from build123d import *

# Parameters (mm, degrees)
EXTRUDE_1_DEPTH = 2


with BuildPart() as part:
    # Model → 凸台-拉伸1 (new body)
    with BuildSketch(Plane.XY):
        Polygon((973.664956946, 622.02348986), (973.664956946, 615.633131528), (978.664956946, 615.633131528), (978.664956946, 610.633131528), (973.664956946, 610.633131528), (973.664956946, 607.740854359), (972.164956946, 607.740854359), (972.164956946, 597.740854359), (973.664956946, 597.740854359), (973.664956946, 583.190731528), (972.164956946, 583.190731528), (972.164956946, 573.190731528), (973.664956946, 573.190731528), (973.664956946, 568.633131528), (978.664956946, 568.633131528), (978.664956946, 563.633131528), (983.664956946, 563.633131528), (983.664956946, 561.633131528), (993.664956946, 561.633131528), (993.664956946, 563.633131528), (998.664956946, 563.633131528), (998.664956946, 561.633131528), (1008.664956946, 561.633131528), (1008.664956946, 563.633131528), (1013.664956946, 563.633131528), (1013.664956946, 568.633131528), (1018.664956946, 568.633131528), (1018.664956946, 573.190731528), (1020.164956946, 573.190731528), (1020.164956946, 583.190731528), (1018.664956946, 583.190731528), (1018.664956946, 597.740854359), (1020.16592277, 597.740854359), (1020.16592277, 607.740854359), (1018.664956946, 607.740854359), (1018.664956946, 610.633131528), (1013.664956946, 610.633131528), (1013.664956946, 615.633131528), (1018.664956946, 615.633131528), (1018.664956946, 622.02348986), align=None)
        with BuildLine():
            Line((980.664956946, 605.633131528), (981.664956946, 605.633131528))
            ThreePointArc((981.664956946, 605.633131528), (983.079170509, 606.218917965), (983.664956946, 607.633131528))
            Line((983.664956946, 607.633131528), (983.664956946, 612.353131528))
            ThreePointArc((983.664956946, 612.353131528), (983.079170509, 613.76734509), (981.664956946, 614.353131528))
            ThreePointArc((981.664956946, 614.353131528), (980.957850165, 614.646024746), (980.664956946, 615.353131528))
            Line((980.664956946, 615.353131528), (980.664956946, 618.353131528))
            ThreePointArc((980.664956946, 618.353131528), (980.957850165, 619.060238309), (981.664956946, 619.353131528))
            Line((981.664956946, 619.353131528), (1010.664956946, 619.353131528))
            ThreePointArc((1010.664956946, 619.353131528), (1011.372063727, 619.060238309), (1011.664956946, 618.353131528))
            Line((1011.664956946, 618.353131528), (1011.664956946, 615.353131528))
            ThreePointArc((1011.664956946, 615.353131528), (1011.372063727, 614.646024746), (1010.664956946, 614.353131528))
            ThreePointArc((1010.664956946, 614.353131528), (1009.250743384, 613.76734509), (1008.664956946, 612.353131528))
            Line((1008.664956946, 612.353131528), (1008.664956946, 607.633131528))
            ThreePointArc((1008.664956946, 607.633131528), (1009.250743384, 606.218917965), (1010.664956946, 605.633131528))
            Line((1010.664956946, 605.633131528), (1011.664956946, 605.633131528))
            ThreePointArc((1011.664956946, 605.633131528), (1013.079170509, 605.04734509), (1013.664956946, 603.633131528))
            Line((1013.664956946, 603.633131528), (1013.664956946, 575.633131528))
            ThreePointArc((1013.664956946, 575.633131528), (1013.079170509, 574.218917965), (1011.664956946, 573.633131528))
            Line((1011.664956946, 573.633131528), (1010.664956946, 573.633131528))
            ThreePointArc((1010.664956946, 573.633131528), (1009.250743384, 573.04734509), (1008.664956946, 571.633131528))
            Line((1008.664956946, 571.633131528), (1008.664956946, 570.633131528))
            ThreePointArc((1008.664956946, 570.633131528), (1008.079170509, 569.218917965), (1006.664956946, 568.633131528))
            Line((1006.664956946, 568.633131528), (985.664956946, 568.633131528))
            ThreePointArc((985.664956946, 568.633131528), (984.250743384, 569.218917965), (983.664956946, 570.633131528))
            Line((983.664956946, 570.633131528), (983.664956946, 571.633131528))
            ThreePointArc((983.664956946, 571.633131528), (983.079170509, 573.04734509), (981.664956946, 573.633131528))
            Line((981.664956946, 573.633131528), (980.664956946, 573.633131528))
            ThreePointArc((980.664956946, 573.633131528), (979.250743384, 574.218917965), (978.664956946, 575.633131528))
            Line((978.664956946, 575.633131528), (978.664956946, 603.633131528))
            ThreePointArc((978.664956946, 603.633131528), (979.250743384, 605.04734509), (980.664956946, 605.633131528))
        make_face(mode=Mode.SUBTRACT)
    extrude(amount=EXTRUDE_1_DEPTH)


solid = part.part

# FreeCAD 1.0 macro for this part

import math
import FreeCAD as App
import Part
import Sketcher
from FreeCAD import Vector
Q = App.Units.Quantity

doc = App.newDocument("Part")
body = doc.addObject("PartDesign::Body", "Body")

sketch1 = body.newObject("Sketcher::SketchObject", "Sketch")
sketch1.AttachmentSupport = (doc.getObject("XY_Plane"), [""])
sketch1.MapMode = "FlatFace"
sketch1.addGeometry(Part.LineSegment(Vector(973.7, 622, 0), Vector(973.7, 615.6, 0)), False)
sketch1.addGeometry(Part.LineSegment(Vector(973.7, 615.6, 0), Vector(978.7, 615.6, 0)), False)
sketch1.addGeometry(Part.LineSegment(Vector(978.7, 615.6, 0), Vector(978.7, 610.6, 0)), False)
sketch1.addGeometry(Part.LineSegment(Vector(978.7, 610.6, 0), Vector(973.7, 610.6, 0)), False)
sketch1.addGeometry(Part.LineSegment(Vector(973.7, 610.6, 0), Vector(973.7, 607.7, 0)), False)
sketch1.addGeometry(Part.LineSegment(Vector(973.7, 607.7, 0), Vector(972.2, 607.7, 0)), False)
sketch1.addGeometry(Part.LineSegment(Vector(972.2, 607.7, 0), Vector(972.2, 597.7, 0)), False)
sketch1.addGeometry(Part.LineSegment(Vector(972.2, 597.7, 0), Vector(973.7, 597.7, 0)), False)
sketch1.addGeometry(Part.LineSegment(Vector(973.7, 597.7, 0), Vector(973.7, 583.2, 0)), False)
sketch1.addGeometry(Part.LineSegment(Vector(973.7, 583.2, 0), Vector(972.2, 583.2, 0)), False)
sketch1.addGeometry(Part.LineSegment(Vector(972.2, 583.2, 0), Vector(972.2, 573.2, 0)), False)
sketch1.addGeometry(Part.LineSegment(Vector(972.2, 573.2, 0), Vector(973.7, 573.2, 0)), False)
sketch1.addGeometry(Part.LineSegment(Vector(973.7, 573.2, 0), Vector(973.7, 568.6, 0)), False)
sketch1.addGeometry(Part.LineSegment(Vector(973.7, 568.6, 0), Vector(978.7, 568.6, 0)), False)
sketch1.addGeometry(Part.LineSegment(Vector(978.7, 568.6, 0), Vector(978.7, 563.6, 0)), False)
sketch1.addGeometry(Part.LineSegment(Vector(978.7, 563.6, 0), Vector(983.7, 563.6, 0)), False)
sketch1.addGeometry(Part.LineSegment(Vector(983.7, 563.6, 0), Vector(983.7, 561.6, 0)), False)
sketch1.addGeometry(Part.LineSegment(Vector(983.7, 561.6, 0), Vector(993.7, 561.6, 0)), False)
sketch1.addGeometry(Part.LineSegment(Vector(993.7, 561.6, 0), Vector(993.7, 563.6, 0)), False)
sketch1.addGeometry(Part.LineSegment(Vector(993.7, 563.6, 0), Vector(998.7, 563.6, 0)), False)
sketch1.addGeometry(Part.LineSegment(Vector(998.7, 563.6, 0), Vector(998.7, 561.6, 0)), False)
sketch1.addGeometry(Part.LineSegment(Vector(998.7, 561.6, 0), Vector(1008.7, 561.6, 0)), False)
sketch1.addGeometry(Part.LineSegment(Vector(1008.7, 561.6, 0), Vector(1008.7, 563.6, 0)), False)
sketch1.addGeometry(Part.LineSegment(Vector(1008.7, 563.6, 0), Vector(1013.7, 563.6, 0)), False)
sketch1.addGeometry(Part.LineSegment(Vector(1013.7, 563.6, 0), Vector(1013.7, 568.6, 0)), False)
sketch1.addGeometry(Part.LineSegment(Vector(1013.7, 568.6, 0), Vector(1018.7, 568.6, 0)), False)
sketch1.addGeometry(Part.LineSegment(Vector(1018.7, 568.6, 0), Vector(1018.7, 573.2, 0)), False)
sketch1.addGeometry(Part.LineSegment(Vector(1018.7, 573.2, 0), Vector(1020.2, 573.2, 0)), False)
sketch1.addGeometry(Part.LineSegment(Vector(1020.2, 573.2, 0), Vector(1020.2, 583.2, 0)), False)
sketch1.addGeometry(Part.LineSegment(Vector(1020.2, 583.2, 0), Vector(1018.7, 583.2, 0)), False)
sketch1.addGeometry(Part.LineSegment(Vector(1018.7, 583.2, 0), Vector(1018.7, 597.7, 0)), False)
sketch1.addGeometry(Part.LineSegment(Vector(1018.7, 597.7, 0), Vector(1020.2, 597.7, 0)), False)
sketch1.addGeometry(Part.LineSegment(Vector(1020.2, 597.7, 0), Vector(1020.2, 607.7, 0)), False)
sketch1.addGeometry(Part.LineSegment(Vector(1020.2, 607.7, 0), Vector(1018.7, 607.7, 0)), False)
sketch1.addGeometry(Part.LineSegment(Vector(1018.7, 607.7, 0), Vector(1018.7, 610.6, 0)), False)
sketch1.addGeometry(Part.LineSegment(Vector(1018.7, 610.6, 0), Vector(1013.7, 610.6, 0)), False)
sketch1.addGeometry(Part.LineSegment(Vector(1013.7, 610.6, 0), Vector(1013.7, 615.6, 0)), False)
sketch1.addGeometry(Part.LineSegment(Vector(1013.7, 615.6, 0), Vector(1018.7, 615.6, 0)), False)
sketch1.addGeometry(Part.LineSegment(Vector(1018.7, 615.6, 0), Vector(1018.7, 622, 0)), False)
sketch1.addGeometry(Part.LineSegment(Vector(1018.7, 622, 0), Vector(973.7, 622, 0)), False)
sketch1.addGeometry(Part.ArcOfCircle(Part.Circle(Vector(980.7, 603.6, 0), Vector(0, 0, 1), 2), math.radians(90), math.radians(180)), False)
sketch1.addGeometry(Part.LineSegment(Vector(980.7, 605.6, 0), Vector(981.7, 605.6, 0)), False)
sketch1.addGeometry(Part.ArcOfCircle(Part.Circle(Vector(981.7, 607.6, 0), Vector(0, 0, 1), 2), math.radians(-90), math.radians(0)), False)
sketch1.addGeometry(Part.LineSegment(Vector(983.7, 607.6, 0), Vector(983.7, 612.4, 0)), False)
sketch1.addGeometry(Part.ArcOfCircle(Part.Circle(Vector(981.7, 612.4, 0), Vector(0, 0, 1), 2), math.radians(0), math.radians(90)), False)
sketch1.addGeometry(Part.ArcOfCircle(Part.Circle(Vector(981.7, 615.4, 0), Vector(0, 0, 1), 1), math.radians(180), math.radians(270)), False)
sketch1.addGeometry(Part.LineSegment(Vector(980.7, 615.4, 0), Vector(980.7, 618.4, 0)), False)
sketch1.addGeometry(Part.ArcOfCircle(Part.Circle(Vector(981.7, 618.4, 0), Vector(0, 0, 1), 1), math.radians(90), math.radians(180)), False)
sketch1.addGeometry(Part.LineSegment(Vector(981.7, 619.4, 0), Vector(1010.7, 619.4, 0)), False)
sketch1.addGeometry(Part.ArcOfCircle(Part.Circle(Vector(1010.7, 618.4, 0), Vector(0, 0, 1), 1), math.radians(0), math.radians(90)), False)
sketch1.addGeometry(Part.LineSegment(Vector(1011.7, 618.4, 0), Vector(1011.7, 615.4, 0)), False)
sketch1.addGeometry(Part.ArcOfCircle(Part.Circle(Vector(1010.7, 615.4, 0), Vector(0, 0, 1), 1), math.radians(-90), math.radians(0)), False)
sketch1.addGeometry(Part.ArcOfCircle(Part.Circle(Vector(1010.7, 612.4, 0), Vector(0, 0, 1), 2), math.radians(90), math.radians(180)), False)
sketch1.addGeometry(Part.LineSegment(Vector(1008.7, 612.4, 0), Vector(1008.7, 607.6, 0)), False)
sketch1.addGeometry(Part.ArcOfCircle(Part.Circle(Vector(1010.7, 607.6, 0), Vector(0, 0, 1), 2), math.radians(180), math.radians(270)), False)
sketch1.addGeometry(Part.LineSegment(Vector(1010.7, 605.6, 0), Vector(1011.7, 605.6, 0)), False)
sketch1.addGeometry(Part.ArcOfCircle(Part.Circle(Vector(1011.7, 603.6, 0), Vector(0, 0, 1), 2), math.radians(0), math.radians(90)), False)
sketch1.addGeometry(Part.LineSegment(Vector(1013.7, 603.6, 0), Vector(1013.7, 575.6, 0)), False)
sketch1.addGeometry(Part.ArcOfCircle(Part.Circle(Vector(1011.7, 575.6, 0), Vector(0, 0, 1), 2), math.radians(-90), math.radians(0)), False)
sketch1.addGeometry(Part.LineSegment(Vector(1011.7, 573.6, 0), Vector(1010.7, 573.6, 0)), False)
sketch1.addGeometry(Part.ArcOfCircle(Part.Circle(Vector(1010.7, 571.6, 0), Vector(0, 0, 1), 2), math.radians(90), math.radians(180)), False)
sketch1.addGeometry(Part.LineSegment(Vector(1008.7, 571.6, 0), Vector(1008.7, 570.6, 0)), False)
sketch1.addGeometry(Part.ArcOfCircle(Part.Circle(Vector(1006.7, 570.6, 0), Vector(0, 0, 1), 2), math.radians(-90), math.radians(0)), False)
sketch1.addGeometry(Part.LineSegment(Vector(1006.7, 568.6, 0), Vector(985.7, 568.6, 0)), False)
sketch1.addGeometry(Part.ArcOfCircle(Part.Circle(Vector(985.7, 570.6, 0), Vector(0, 0, 1), 2), math.radians(180), math.radians(270)), False)
sketch1.addGeometry(Part.LineSegment(Vector(983.7, 570.6, 0), Vector(983.7, 571.6, 0)), False)
sketch1.addGeometry(Part.ArcOfCircle(Part.Circle(Vector(981.7, 571.6, 0), Vector(0, 0, 1), 2), math.radians(0), math.radians(90)), False)
sketch1.addGeometry(Part.LineSegment(Vector(981.7, 573.6, 0), Vector(980.7, 573.6, 0)), False)
sketch1.addGeometry(Part.ArcOfCircle(Part.Circle(Vector(980.7, 575.6, 0), Vector(0, 0, 1), 2), math.radians(180), math.radians(270)), False)
sketch1.addGeometry(Part.LineSegment(Vector(978.7, 575.6, 0), Vector(978.7, 603.6, 0)), False)
sketch1.addConstraint(Sketcher.Constraint("Coincident", 0, 2, 1, 1))
sketch1.addConstraint(Sketcher.Constraint("Coincident", 1, 2, 2, 1))
sketch1.addConstraint(Sketcher.Constraint("Coincident", 2, 2, 3, 1))
sketch1.addConstraint(Sketcher.Constraint("Coincident", 3, 2, 4, 1))
sketch1.addConstraint(Sketcher.Constraint("Coincident", 4, 2, 5, 1))
sketch1.addConstraint(Sketcher.Constraint("Coincident", 5, 2, 6, 1))
sketch1.addConstraint(Sketcher.Constraint("Coincident", 6, 2, 7, 1))
sketch1.addConstraint(Sketcher.Constraint("Coincident", 7, 2, 8, 1))
sketch1.addConstraint(Sketcher.Constraint("Coincident", 8, 2, 9, 1))
sketch1.addConstraint(Sketcher.Constraint("Coincident", 9, 2, 10, 1))
sketch1.addConstraint(Sketcher.Constraint("Coincident", 10, 2, 11, 1))
sketch1.addConstraint(Sketcher.Constraint("Coincident", 11, 2, 12, 1))
sketch1.addConstraint(Sketcher.Constraint("Coincident", 12, 2, 13, 1))
sketch1.addConstraint(Sketcher.Constraint("Coincident", 13, 2, 14, 1))
sketch1.addConstraint(Sketcher.Constraint("Coincident", 14, 2, 15, 1))
sketch1.addConstraint(Sketcher.Constraint("Coincident", 15, 2, 16, 1))
sketch1.addConstraint(Sketcher.Constraint("Coincident", 16, 2, 17, 1))
sketch1.addConstraint(Sketcher.Constraint("Coincident", 17, 2, 18, 1))
sketch1.addConstraint(Sketcher.Constraint("Coincident", 18, 2, 19, 1))
sketch1.addConstraint(Sketcher.Constraint("Coincident", 19, 2, 20, 1))
sketch1.addConstraint(Sketcher.Constraint("Coincident", 20, 2, 21, 1))
sketch1.addConstraint(Sketcher.Constraint("Coincident", 21, 2, 22, 1))
sketch1.addConstraint(Sketcher.Constraint("Coincident", 22, 2, 23, 1))
sketch1.addConstraint(Sketcher.Constraint("Coincident", 23, 2, 24, 1))
sketch1.addConstraint(Sketcher.Constraint("Coincident", 24, 2, 25, 1))
sketch1.addConstraint(Sketcher.Constraint("Coincident", 25, 2, 26, 1))
sketch1.addConstraint(Sketcher.Constraint("Coincident", 26, 2, 27, 1))
sketch1.addConstraint(Sketcher.Constraint("Coincident", 27, 2, 28, 1))
sketch1.addConstraint(Sketcher.Constraint("Coincident", 28, 2, 29, 1))
sketch1.addConstraint(Sketcher.Constraint("Coincident", 29, 2, 30, 1))
sketch1.addConstraint(Sketcher.Constraint("Coincident", 30, 2, 31, 1))
sketch1.addConstraint(Sketcher.Constraint("Coincident", 31, 2, 32, 1))
sketch1.addConstraint(Sketcher.Constraint("Coincident", 32, 2, 33, 1))
sketch1.addConstraint(Sketcher.Constraint("Coincident", 33, 2, 34, 1))
sketch1.addConstraint(Sketcher.Constraint("Coincident", 34, 2, 35, 1))
sketch1.addConstraint(Sketcher.Constraint("Coincident", 35, 2, 36, 1))
sketch1.addConstraint(Sketcher.Constraint("Coincident", 36, 2, 37, 1))
sketch1.addConstraint(Sketcher.Constraint("Coincident", 37, 2, 38, 1))
sketch1.addConstraint(Sketcher.Constraint("Coincident", 38, 2, 39, 1))
sketch1.addConstraint(Sketcher.Constraint("Coincident", 39, 2, 0, 1))
sketch1.addConstraint(Sketcher.Constraint("Tangent", 40, 1, 41, 1))
sketch1.addConstraint(Sketcher.Constraint("Tangent", 41, 2, 42, 1))
sketch1.addConstraint(Sketcher.Constraint("Tangent", 42, 2, 43, 1))
sketch1.addConstraint(Sketcher.Constraint("Tangent", 43, 2, 44, 1))
sketch1.addConstraint(Sketcher.Constraint("Tangent", 44, 2, 45, 2))
sketch1.addConstraint(Sketcher.Constraint("Tangent", 45, 1, 46, 1))
sketch1.addConstraint(Sketcher.Constraint("Tangent", 46, 2, 47, 2))
sketch1.addConstraint(Sketcher.Constraint("Tangent", 47, 1, 48, 1))
sketch1.addConstraint(Sketcher.Constraint("Tangent", 48, 2, 49, 2))
sketch1.addConstraint(Sketcher.Constraint("Tangent", 49, 1, 50, 1))
sketch1.addConstraint(Sketcher.Constraint("Tangent", 50, 2, 51, 2))
sketch1.addConstraint(Sketcher.Constraint("Tangent", 51, 1, 52, 1))
sketch1.addConstraint(Sketcher.Constraint("Tangent", 52, 2, 53, 1))
sketch1.addConstraint(Sketcher.Constraint("Tangent", 53, 2, 54, 1))
sketch1.addConstraint(Sketcher.Constraint("Tangent", 54, 2, 55, 1))
sketch1.addConstraint(Sketcher.Constraint("Tangent", 55, 2, 56, 2))
sketch1.addConstraint(Sketcher.Constraint("Tangent", 56, 1, 57, 1))
sketch1.addConstraint(Sketcher.Constraint("Tangent", 57, 2, 58, 2))
sketch1.addConstraint(Sketcher.Constraint("Tangent", 58, 1, 59, 1))
sketch1.addConstraint(Sketcher.Constraint("Tangent", 59, 2, 60, 1))
sketch1.addConstraint(Sketcher.Constraint("Tangent", 60, 2, 61, 1))
sketch1.addConstraint(Sketcher.Constraint("Tangent", 61, 2, 62, 2))
sketch1.addConstraint(Sketcher.Constraint("Tangent", 62, 1, 63, 1))
sketch1.addConstraint(Sketcher.Constraint("Tangent", 63, 2, 64, 2))
sketch1.addConstraint(Sketcher.Constraint("Tangent", 64, 1, 65, 1))
sketch1.addConstraint(Sketcher.Constraint("Tangent", 65, 2, 66, 1))
sketch1.addConstraint(Sketcher.Constraint("Tangent", 66, 2, 67, 1))
sketch1.addConstraint(Sketcher.Constraint("Tangent", 67, 2, 68, 2))
sketch1.addConstraint(Sketcher.Constraint("Tangent", 68, 1, 69, 1))
sketch1.addConstraint(Sketcher.Constraint("Tangent", 69, 2, 40, 2))
sketch1.addConstraint(Sketcher.Constraint("Vertical", 0))
sketch1.addConstraint(Sketcher.Constraint("Horizontal", 1))
sketch1.addConstraint(Sketcher.Constraint("Vertical", 2))
sketch1.addConstraint(Sketcher.Constraint("Horizontal", 3))
sketch1.addConstraint(Sketcher.Constraint("Vertical", 4))
sketch1.addConstraint(Sketcher.Constraint("Horizontal", 5))
sketch1.addConstraint(Sketcher.Constraint("Vertical", 6))
sketch1.addConstraint(Sketcher.Constraint("Horizontal", 7))
sketch1.addConstraint(Sketcher.Constraint("Vertical", 8))
sketch1.addConstraint(Sketcher.Constraint("Horizontal", 9))
sketch1.addConstraint(Sketcher.Constraint("Vertical", 10))
sketch1.addConstraint(Sketcher.Constraint("Horizontal", 11))
sketch1.addConstraint(Sketcher.Constraint("Vertical", 12))
sketch1.addConstraint(Sketcher.Constraint("Horizontal", 13))
sketch1.addConstraint(Sketcher.Constraint("Vertical", 14))
sketch1.addConstraint(Sketcher.Constraint("Horizontal", 15))
sketch1.addConstraint(Sketcher.Constraint("Vertical", 16))
sketch1.addConstraint(Sketcher.Constraint("Horizontal", 17))
sketch1.addConstraint(Sketcher.Constraint("Vertical", 18))
sketch1.addConstraint(Sketcher.Constraint("Horizontal", 19))
sketch1.addConstraint(Sketcher.Constraint("Vertical", 20))
sketch1.addConstraint(Sketcher.Constraint("Horizontal", 21))
sketch1.addConstraint(Sketcher.Constraint("Vertical", 22))
sketch1.addConstraint(Sketcher.Constraint("Horizontal", 23))
sketch1.addConstraint(Sketcher.Constraint("Vertical", 24))
sketch1.addConstraint(Sketcher.Constraint("Horizontal", 25))
sketch1.addConstraint(Sketcher.Constraint("Vertical", 26))
sketch1.addConstraint(Sketcher.Constraint("Horizontal", 27))
sketch1.addConstraint(Sketcher.Constraint("Vertical", 28))
sketch1.addConstraint(Sketcher.Constraint("Horizontal", 29))
sketch1.addConstraint(Sketcher.Constraint("Vertical", 30))
sketch1.addConstraint(Sketcher.Constraint("Horizontal", 31))
sketch1.addConstraint(Sketcher.Constraint("Vertical", 32))
sketch1.addConstraint(Sketcher.Constraint("Horizontal", 33))
sketch1.addConstraint(Sketcher.Constraint("Vertical", 34))
sketch1.addConstraint(Sketcher.Constraint("Horizontal", 35))
sketch1.addConstraint(Sketcher.Constraint("Vertical", 36))
sketch1.addConstraint(Sketcher.Constraint("Horizontal", 37))
sketch1.addConstraint(Sketcher.Constraint("Vertical", 38))
sketch1.addConstraint(Sketcher.Constraint("Horizontal", 39))
sketch1.addConstraint(Sketcher.Constraint("Horizontal", 41))
sketch1.addConstraint(Sketcher.Constraint("Vertical", 43))
sketch1.addConstraint(Sketcher.Constraint("Vertical", 46))
sketch1.addConstraint(Sketcher.Constraint("Horizontal", 48))
sketch1.addConstraint(Sketcher.Constraint("Vertical", 50))
sketch1.addConstraint(Sketcher.Constraint("Vertical", 53))
sketch1.addConstraint(Sketcher.Constraint("Horizontal", 55))
sketch1.addConstraint(Sketcher.Constraint("Vertical", 57))
sketch1.addConstraint(Sketcher.Constraint("Horizontal", 59))
sketch1.addConstraint(Sketcher.Constraint("Vertical", 61))
sketch1.addConstraint(Sketcher.Constraint("Horizontal", 63))
sketch1.addConstraint(Sketcher.Constraint("Vertical", 65))
sketch1.addConstraint(Sketcher.Constraint("Horizontal", 67))
sketch1.addConstraint(Sketcher.Constraint("Vertical", 69))
sketch1.addConstraint(Sketcher.Constraint("Equal", 40, 42))
sketch1.addConstraint(Sketcher.Constraint("Equal", 42, 44))
sketch1.addConstraint(Sketcher.Constraint("Equal", 45, 47))
sketch1.addConstraint(Sketcher.Constraint("Equal", 47, 49))
sketch1.addConstraint(Sketcher.Constraint("Equal", 49, 51))
sketch1.addConstraint(Sketcher.Constraint("Equal", 44, 52))
sketch1.addConstraint(Sketcher.Constraint("Equal", 52, 54))
sketch1.addConstraint(Sketcher.Constraint("Equal", 54, 56))
sketch1.addConstraint(Sketcher.Constraint("Equal", 56, 58))
sketch1.addConstraint(Sketcher.Constraint("Equal", 58, 60))
sketch1.addConstraint(Sketcher.Constraint("Equal", 60, 62))
sketch1.addConstraint(Sketcher.Constraint("Equal", 62, 64))
sketch1.addConstraint(Sketcher.Constraint("Equal", 64, 66))
sketch1.addConstraint(Sketcher.Constraint("Equal", 66, 68))
sketch1.addConstraint(Sketcher.Constraint("Horizontal", 45, 3, 51, 3))
sketch1.addConstraint(Sketcher.Constraint("Horizontal", 42, 3, 54, 3))
sketch1.addConstraint(Sketcher.Constraint("Horizontal", 60, 3, 66, 3))
sketch1.addConstraint(Sketcher.Constraint("Horizontal", 15, 2, 18, 2))
sketch1.addConstraint(Sketcher.Constraint("Horizontal", 17, 2, 20, 2))
sketch1.addConstraint(Sketcher.Constraint("Horizontal", 19, 2, 22, 2))
sketch1.addConstraint(Sketcher.Constraint("Horizontal", 13, 2, 24, 2))
sketch1.addConstraint(Sketcher.Constraint("Horizontal", 11, 2, 26, 2))
sketch1.addConstraint(Sketcher.Constraint("Horizontal", 9, 2, 28, 2))
sketch1.addConstraint(Sketcher.Constraint("Horizontal", 7, 2, 30, 2))
sketch1.addConstraint(Sketcher.Constraint("Horizontal", 5, 2, 32, 2))
sketch1.addConstraint(Sketcher.Constraint("Horizontal", 3, 2, 34, 2))
sketch1.addConstraint(Sketcher.Constraint("Horizontal", 1, 2, 36, 2))
sketch1.addConstraint(Sketcher.Constraint("Horizontal", 25, 2, 62, 1))
sketch1.addConstraint(Sketcher.Constraint("Vertical", 44, 3, 45, 3))
sketch1.addConstraint(Sketcher.Constraint("Vertical", 51, 3, 52, 3))
sketch1.addConstraint(Sketcher.Constraint("Vertical", 54, 3, 60, 3))
sketch1.addConstraint(Sketcher.Constraint("Vertical", 47, 3, 66, 3))
sketch1.addConstraint(Sketcher.Constraint("Vertical", 0, 2, 3, 2))
sketch1.addConstraint(Sketcher.Constraint("Vertical", 4, 2, 7, 2))
sketch1.addConstraint(Sketcher.Constraint("Vertical", 6, 2, 9, 2))
sketch1.addConstraint(Sketcher.Constraint("Vertical", 8, 2, 11, 2))
sketch1.addConstraint(Sketcher.Constraint("Vertical", 2, 2, 13, 2))
sketch1.addConstraint(Sketcher.Constraint("Vertical", 26, 2, 29, 2))
sketch1.addConstraint(Sketcher.Constraint("Vertical", 30, 2, 33, 2))
sketch1.addConstraint(Sketcher.Constraint("Vertical", 24, 2, 35, 2))
sketch1.addConstraint(Sketcher.Constraint("Vertical", 34, 2, 37, 2))
sketch1.addConstraint(Sketcher.Constraint("Vertical", 16, 2, 42, 2))
sketch1.addConstraint(Sketcher.Constraint("Vertical", 40, 1, 45, 1))
sketch1.addConstraint(Sketcher.Constraint("Vertical", 58, 3, 49, 1))
sketch1.addConstraint(Sketcher.Constraint("Vertical", 22, 2, 52, 2))
sketch1.addConstraint(Sketcher.Constraint("Vertical", 36, 2, 56, 1))
sketch1.addConstraint(Sketcher.Constraint("Vertical", 14, 2, 68, 1))
sketch1.addConstraint(Sketcher.Constraint("Equal", 13, 15))
sketch1.addConstraint(Sketcher.Constraint("Equal", 15, 19))
sketch1.addConstraint(Sketcher.Constraint("Equal", 17, 21))
sketch1.addConstraint(Sketcher.Constraint("Equal", 23, 25))
sketch1.addConstraint(Sketcher.Constraint("Equal", 11, 27))
sketch1.addConstraint(Sketcher.Constraint("Equal", 37, 2))
sketch1.addConstraint(Sketcher.Constraint("Equal", 21, 6))
sketch1.addConstraint(Sketcher.Constraint("Equal", 6, 10))
sketch1.addConstraint(Sketcher.Constraint("Equal", 2, 14))
sketch1.addConstraint(Sketcher.Constraint("Equal", 67, 61))
sketch1.addConstraint(Sketcher.Constraint("Radius", 40, Q("2 mm")))
sketch1.addConstraint(Sketcher.Constraint("Radius", 45, Q("1 mm")))
sketch1.addConstraint(Sketcher.Constraint("DistanceX", 17, 1, 17, 2, Q("10 mm")))
sketch1.addConstraint(Sketcher.Constraint("DistanceY", 16, 2, 16, 1, Q("2 mm")))
sketch1.addConstraint(Sketcher.Constraint("DistanceY", 46, 1, 46, 2, Q("3 mm")))
sketch1.addConstraint(Sketcher.Constraint("DistanceY", 57, 2, 57, 1, Q("28 mm")))
sketch1.addConstraint(Sketcher.Constraint("DistanceX", 5, 2, 5, 1, Q("1.5 mm")))
sketch1.addConstraint(Sketcher.Constraint("DistanceY", 43, 1, 43, 2, Q("4.72 mm")))
sketch1.addConstraint(Sketcher.Constraint("DistanceY", 12, 2, 12, 1, Q("4.5576 mm")))
sketch1.addConstraint(Sketcher.Constraint("DistanceY", 0, 2, 0, 1, Q("6.390358 mm")))
sketch1.addConstraint(Sketcher.Constraint("DistanceX", 31, 1, 31, 2, Q("1.500966 mm")))
sketch1.addConstraint(Sketcher.Constraint("DistanceY", 4, 2, 4, 1, Q("2.892277 mm")))
sketch1.addConstraint(Sketcher.Constraint("DistanceY", 8, 2, 8, 1, Q("14.550123 mm")))
sketch1.addConstraint(Sketcher.Constraint("DistanceY", -1, 1, 40, 3, Q("603.633132 mm")))
sketch1.addConstraint(Sketcher.Constraint("DistanceX", -1, 1, 40, 3, Q("980.664957 mm")))
pad1 = body.newObject("PartDesign::Pad", "Pad")
pad1.Profile = sketch1
pad1.Length = 2

doc.recompute()
